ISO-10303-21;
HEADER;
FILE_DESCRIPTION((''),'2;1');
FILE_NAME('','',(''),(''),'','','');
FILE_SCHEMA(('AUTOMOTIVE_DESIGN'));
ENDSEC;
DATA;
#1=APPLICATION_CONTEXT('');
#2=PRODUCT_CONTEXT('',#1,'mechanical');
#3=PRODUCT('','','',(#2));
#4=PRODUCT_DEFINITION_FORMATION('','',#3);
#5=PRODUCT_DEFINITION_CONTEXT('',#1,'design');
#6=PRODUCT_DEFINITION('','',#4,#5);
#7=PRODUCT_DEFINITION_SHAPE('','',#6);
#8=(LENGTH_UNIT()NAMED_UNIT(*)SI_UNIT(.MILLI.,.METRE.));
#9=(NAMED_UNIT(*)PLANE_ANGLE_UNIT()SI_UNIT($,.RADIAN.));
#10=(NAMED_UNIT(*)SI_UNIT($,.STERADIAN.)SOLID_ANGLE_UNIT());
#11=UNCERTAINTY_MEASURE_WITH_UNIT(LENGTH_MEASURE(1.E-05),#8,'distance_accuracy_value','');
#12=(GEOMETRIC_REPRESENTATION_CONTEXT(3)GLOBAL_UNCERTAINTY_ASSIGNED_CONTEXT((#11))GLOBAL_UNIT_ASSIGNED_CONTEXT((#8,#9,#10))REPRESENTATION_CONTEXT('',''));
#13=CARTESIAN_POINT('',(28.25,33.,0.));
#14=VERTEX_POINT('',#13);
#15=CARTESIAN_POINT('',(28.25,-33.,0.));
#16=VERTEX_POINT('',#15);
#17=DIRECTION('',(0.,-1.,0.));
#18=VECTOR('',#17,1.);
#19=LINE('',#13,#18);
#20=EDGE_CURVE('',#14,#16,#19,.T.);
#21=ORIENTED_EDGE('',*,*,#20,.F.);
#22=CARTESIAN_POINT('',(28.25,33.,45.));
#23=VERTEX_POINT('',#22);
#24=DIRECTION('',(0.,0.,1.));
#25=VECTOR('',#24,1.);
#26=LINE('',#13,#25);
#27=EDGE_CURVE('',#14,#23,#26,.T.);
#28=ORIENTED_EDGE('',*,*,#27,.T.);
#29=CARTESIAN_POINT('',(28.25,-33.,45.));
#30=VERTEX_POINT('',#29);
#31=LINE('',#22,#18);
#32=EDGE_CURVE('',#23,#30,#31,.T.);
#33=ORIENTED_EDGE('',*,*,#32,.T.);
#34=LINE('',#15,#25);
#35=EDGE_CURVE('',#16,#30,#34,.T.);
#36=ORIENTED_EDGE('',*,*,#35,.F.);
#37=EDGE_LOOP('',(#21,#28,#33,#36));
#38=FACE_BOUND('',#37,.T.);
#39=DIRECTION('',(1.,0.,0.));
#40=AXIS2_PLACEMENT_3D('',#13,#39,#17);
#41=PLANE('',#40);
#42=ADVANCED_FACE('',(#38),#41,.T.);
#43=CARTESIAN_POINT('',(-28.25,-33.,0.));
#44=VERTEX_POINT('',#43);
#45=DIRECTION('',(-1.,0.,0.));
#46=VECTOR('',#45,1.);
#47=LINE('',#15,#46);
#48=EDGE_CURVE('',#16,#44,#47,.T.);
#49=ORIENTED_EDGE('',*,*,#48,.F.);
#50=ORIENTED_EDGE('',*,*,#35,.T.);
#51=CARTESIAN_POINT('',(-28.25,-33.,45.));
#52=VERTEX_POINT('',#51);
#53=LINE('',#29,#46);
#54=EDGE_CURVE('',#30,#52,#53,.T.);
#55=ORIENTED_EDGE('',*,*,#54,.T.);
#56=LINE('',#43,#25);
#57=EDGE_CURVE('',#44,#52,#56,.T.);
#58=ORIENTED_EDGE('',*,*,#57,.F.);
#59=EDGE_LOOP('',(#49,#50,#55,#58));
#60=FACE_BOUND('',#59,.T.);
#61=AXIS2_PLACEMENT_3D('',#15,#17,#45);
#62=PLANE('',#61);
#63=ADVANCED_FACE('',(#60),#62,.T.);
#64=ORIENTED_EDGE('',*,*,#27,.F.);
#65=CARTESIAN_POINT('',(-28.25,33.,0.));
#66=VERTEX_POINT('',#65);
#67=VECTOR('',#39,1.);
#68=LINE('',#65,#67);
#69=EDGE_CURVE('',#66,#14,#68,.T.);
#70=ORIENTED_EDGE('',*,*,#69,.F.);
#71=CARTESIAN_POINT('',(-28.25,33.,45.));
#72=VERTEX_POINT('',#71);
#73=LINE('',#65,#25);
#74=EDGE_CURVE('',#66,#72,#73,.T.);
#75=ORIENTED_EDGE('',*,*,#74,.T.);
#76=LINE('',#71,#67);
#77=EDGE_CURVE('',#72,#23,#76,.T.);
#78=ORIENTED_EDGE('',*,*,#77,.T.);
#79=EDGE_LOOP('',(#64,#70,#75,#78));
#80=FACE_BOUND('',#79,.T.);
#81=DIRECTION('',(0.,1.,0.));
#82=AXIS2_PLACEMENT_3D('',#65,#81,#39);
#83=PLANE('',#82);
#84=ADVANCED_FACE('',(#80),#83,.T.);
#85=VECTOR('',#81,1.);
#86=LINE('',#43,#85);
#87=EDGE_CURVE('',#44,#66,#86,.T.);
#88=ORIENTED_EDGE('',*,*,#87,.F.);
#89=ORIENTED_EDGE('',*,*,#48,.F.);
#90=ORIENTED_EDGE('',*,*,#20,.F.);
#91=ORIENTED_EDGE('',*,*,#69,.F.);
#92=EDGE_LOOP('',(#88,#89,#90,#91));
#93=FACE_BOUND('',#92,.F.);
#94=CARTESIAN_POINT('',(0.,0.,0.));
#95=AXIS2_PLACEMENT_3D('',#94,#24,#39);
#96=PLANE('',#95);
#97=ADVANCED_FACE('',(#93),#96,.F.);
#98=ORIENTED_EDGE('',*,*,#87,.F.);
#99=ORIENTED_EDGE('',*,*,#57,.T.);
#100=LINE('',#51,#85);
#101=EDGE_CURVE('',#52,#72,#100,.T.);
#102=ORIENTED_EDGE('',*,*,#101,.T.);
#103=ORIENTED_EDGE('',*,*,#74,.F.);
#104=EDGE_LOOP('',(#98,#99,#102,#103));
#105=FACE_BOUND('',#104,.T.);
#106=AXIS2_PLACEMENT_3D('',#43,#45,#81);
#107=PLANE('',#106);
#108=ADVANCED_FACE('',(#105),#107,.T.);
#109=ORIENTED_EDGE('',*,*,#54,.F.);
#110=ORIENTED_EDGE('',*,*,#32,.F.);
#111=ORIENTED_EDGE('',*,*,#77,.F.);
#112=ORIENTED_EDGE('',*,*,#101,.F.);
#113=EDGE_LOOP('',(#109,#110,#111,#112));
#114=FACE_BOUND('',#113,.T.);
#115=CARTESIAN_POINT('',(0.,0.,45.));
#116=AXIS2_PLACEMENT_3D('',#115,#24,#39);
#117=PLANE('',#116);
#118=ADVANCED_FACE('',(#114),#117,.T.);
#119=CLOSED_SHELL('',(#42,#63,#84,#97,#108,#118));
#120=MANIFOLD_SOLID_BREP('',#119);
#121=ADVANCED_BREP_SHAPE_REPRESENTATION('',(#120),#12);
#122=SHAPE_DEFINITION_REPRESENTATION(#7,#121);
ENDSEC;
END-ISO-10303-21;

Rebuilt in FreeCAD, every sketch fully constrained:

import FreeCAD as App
import Part
import Sketcher
from FreeCAD import Vector
Q = App.Units.Quantity

doc = App.newDocument("Part")
body = doc.addObject("PartDesign::Body", "Body")

sketch1 = doc.addObject("Sketcher::SketchObject", "Sketch")
body.addObject(sketch1)
sketch1.AttachmentSupport = (doc.XY_Plane, [""])
sketch1.MapMode = "FlatFace"
sketch1.addGeometry([
    Part.LineSegment(Vector(-28.25, -33, 0), Vector(28.25, -33, 0)),
    Part.LineSegment(Vector(28.25, -33, 0), Vector(28.25, 33, 0)),
    Part.LineSegment(Vector(28.25, 33, 0), Vector(-28.25, 33, 0)),
    Part.LineSegment(Vector(-28.25, 33, 0), Vector(-28.25, -33, 0)),
], False)
sketch1.addConstraint([
    Sketcher.Constraint("Coincident", 0, 2, 1, 1),
    Sketcher.Constraint("Coincident", 1, 2, 2, 1),
    Sketcher.Constraint("Coincident", 2, 2, 3, 1),
    Sketcher.Constraint("Coincident", 3, 2, 0, 1),
    Sketcher.Constraint("Horizontal", 0),
    Sketcher.Constraint("Vertical", 1),
    Sketcher.Constraint("Horizontal", 2),
    Sketcher.Constraint("Vertical", 3),
    Sketcher.Constraint("Symmetric", 0, 2, 2, 2, -1, 1),
    Sketcher.Constraint("DistanceY", 1, 1, 1, 2, Q("66 mm")),
    Sketcher.Constraint("DistanceX", 0, 1, 0, 2, Q("56.5 mm")),
])
pad1 = doc.addObject("PartDesign::Pad", "Pad")
body.addObject(pad1)
pad1.Profile = sketch1
pad1.Length = 45

doc.recompute()
